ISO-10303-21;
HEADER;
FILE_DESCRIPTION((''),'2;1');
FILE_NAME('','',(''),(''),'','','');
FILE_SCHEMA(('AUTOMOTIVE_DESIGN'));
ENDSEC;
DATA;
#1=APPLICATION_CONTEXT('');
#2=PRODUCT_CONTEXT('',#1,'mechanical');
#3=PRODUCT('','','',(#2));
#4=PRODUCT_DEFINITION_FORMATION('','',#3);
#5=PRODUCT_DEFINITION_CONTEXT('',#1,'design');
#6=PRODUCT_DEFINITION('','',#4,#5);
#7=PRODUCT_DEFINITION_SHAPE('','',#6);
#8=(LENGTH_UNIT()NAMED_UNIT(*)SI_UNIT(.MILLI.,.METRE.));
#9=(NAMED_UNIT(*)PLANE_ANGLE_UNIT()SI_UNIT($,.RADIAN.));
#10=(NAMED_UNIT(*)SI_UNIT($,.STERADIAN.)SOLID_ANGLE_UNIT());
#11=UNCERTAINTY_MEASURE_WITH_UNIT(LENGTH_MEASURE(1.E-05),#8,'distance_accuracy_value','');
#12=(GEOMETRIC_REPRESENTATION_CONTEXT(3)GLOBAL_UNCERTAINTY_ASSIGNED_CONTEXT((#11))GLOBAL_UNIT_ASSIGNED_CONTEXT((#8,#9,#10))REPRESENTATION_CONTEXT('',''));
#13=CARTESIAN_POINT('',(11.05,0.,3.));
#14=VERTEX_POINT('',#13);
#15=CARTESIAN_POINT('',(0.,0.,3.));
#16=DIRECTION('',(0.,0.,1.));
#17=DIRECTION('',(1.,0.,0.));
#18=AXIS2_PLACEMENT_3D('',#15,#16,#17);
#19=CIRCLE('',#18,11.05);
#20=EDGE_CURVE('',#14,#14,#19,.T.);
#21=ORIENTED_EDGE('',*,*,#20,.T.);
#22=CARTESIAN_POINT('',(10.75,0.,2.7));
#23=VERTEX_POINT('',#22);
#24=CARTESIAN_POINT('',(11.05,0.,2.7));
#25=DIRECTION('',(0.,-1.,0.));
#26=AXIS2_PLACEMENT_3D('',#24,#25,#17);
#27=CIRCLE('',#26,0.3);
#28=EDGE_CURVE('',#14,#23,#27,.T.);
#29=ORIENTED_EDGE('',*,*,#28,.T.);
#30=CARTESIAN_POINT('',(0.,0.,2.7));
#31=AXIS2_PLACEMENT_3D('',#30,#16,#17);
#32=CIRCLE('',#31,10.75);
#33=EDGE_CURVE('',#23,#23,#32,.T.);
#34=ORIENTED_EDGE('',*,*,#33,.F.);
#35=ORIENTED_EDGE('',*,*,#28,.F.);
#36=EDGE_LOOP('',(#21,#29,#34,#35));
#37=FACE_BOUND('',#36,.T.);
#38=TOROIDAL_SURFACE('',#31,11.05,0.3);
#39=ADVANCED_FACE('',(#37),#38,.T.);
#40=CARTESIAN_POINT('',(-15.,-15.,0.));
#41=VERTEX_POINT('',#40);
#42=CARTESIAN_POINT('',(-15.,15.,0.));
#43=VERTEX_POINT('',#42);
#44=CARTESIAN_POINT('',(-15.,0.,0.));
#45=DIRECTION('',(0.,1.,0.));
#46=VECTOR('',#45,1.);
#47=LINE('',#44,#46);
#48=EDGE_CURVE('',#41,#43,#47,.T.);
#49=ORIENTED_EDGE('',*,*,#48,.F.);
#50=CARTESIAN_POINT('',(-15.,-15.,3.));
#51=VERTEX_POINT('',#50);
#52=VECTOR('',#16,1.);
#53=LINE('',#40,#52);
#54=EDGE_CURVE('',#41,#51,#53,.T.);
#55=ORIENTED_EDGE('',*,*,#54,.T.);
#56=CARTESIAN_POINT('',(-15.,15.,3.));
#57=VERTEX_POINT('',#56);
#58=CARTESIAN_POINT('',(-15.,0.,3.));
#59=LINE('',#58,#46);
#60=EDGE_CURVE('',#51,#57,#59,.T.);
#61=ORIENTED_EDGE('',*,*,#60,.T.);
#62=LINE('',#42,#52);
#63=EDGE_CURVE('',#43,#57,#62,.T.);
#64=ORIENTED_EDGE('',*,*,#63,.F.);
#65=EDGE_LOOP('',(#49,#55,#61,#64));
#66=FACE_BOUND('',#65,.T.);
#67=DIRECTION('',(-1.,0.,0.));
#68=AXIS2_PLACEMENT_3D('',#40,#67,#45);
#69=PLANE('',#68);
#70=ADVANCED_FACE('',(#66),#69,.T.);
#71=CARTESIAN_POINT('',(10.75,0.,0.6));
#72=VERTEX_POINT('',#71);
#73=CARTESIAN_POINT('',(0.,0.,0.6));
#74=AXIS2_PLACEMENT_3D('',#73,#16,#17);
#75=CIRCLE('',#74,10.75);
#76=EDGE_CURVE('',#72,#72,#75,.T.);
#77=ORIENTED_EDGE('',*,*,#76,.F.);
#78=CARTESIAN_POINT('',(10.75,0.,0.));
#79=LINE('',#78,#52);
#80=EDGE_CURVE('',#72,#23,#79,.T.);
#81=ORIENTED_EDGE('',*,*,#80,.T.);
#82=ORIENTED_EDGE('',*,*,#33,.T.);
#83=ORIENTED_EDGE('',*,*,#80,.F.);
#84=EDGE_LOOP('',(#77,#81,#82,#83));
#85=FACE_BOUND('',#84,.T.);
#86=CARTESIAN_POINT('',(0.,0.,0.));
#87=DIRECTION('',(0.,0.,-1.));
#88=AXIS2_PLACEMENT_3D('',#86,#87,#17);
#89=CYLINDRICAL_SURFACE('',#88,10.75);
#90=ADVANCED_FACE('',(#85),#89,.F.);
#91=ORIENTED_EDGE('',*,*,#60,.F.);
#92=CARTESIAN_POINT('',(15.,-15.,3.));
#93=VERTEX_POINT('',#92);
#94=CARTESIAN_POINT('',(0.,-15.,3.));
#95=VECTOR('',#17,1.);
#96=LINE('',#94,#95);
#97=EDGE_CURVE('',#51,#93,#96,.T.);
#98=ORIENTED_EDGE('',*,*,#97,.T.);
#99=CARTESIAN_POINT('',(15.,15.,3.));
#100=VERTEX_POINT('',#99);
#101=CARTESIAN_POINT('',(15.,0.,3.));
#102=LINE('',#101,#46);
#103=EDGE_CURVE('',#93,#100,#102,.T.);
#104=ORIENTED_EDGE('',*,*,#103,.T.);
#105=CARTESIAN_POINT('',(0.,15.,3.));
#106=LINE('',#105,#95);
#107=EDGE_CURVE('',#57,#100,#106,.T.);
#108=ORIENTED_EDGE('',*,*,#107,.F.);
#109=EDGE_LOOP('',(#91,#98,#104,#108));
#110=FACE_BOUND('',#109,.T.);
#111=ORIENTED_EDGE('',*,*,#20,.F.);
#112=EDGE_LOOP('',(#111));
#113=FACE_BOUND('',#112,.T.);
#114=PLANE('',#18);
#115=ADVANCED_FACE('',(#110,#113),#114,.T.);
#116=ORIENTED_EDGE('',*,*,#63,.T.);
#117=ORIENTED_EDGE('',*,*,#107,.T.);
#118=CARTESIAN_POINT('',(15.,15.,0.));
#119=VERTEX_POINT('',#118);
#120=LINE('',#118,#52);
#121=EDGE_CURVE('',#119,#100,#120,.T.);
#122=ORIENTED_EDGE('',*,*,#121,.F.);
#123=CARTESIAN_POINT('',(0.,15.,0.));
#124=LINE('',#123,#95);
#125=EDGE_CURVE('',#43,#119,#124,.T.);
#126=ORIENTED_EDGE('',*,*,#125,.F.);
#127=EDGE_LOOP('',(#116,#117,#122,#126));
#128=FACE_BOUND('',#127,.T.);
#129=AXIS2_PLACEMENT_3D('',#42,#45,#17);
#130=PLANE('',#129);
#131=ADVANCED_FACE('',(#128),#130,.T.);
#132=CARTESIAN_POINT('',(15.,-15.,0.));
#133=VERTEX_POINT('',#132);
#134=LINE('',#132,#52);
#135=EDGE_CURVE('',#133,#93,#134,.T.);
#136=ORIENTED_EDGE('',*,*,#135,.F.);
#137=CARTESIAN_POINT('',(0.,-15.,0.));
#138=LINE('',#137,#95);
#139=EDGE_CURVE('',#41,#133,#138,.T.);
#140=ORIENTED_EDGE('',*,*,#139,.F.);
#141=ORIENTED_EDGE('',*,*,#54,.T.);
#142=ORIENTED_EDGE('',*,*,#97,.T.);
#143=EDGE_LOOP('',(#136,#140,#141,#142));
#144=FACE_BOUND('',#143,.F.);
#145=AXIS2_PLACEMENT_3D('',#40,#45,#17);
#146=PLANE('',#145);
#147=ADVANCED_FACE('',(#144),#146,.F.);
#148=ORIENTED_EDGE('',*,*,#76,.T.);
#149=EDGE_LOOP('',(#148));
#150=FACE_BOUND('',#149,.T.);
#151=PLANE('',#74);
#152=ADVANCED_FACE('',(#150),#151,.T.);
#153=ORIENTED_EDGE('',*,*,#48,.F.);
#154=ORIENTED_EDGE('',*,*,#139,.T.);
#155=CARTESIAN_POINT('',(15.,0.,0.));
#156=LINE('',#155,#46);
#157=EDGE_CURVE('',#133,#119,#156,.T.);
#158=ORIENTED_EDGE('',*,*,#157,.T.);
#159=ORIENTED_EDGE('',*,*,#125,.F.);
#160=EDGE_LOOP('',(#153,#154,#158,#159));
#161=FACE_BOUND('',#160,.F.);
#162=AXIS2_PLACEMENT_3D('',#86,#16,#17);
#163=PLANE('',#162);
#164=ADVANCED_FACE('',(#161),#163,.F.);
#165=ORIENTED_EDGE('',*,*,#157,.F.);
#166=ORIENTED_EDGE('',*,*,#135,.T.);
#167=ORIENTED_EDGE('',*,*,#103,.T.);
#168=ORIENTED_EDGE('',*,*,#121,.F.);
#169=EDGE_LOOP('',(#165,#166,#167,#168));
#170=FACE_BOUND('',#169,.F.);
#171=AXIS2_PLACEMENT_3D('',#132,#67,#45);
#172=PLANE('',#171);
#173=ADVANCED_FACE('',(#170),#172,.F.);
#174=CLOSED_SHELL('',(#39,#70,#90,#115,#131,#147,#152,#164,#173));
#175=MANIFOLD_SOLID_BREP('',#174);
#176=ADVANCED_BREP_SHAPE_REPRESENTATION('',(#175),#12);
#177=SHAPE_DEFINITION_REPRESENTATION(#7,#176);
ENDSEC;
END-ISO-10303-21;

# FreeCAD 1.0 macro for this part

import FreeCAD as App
import Part
import Sketcher
from FreeCAD import Vector


def edges_at(feature, points):
    """Names of the edges that pass closest to the given points."""
    edges = feature.Shape.Edges
    near = lambda p: min(range(len(edges)), key=lambda i: edges[i].distToShape(Part.Vertex(*p))[0])
    return sorted({f"Edge{near(p) + 1}" for p in points})


def add_polygon(sketch, points):
    """Adds a closed chain of lines whose ends are joined by coincident constraints."""
    first, n = sketch.GeometryCount, len(points)
    for a, b in zip(points, points[1:] + points[:1]):
        sketch.addGeometry(Part.LineSegment(App.Vector(*a, 0), App.Vector(*b, 0)), False)
    for i in range(n):
        sketch.addConstraint(Sketcher.Constraint("Coincident", first + i, 2, first + (i + 1) % n, 1))

doc = App.newDocument("Part")
body = doc.addObject("PartDesign::Body", "Body")

# Sketch on XY plane
sketch1 = doc.addObject("Sketcher::SketchObject", "Sketch")
body.addObject(sketch1)
sketch1.AttachmentSupport = (doc.XY_Plane, [""])
sketch1.MapMode = "FlatFace"
add_polygon(sketch1, [(-15, 15), (-15, -15), (15, -15), (15, 15)])  # lines 0-3
sketch1.addGeometry(Part.Circle(Vector(0, 0, 0), Vector(0, 0, 1), 11), False)  # 4
sketch1.addConstraint(Sketcher.Constraint("Vertical", 0))
sketch1.addConstraint(Sketcher.Constraint("Horizontal", 1))
sketch1.addConstraint(Sketcher.Constraint("Vertical", 2))
sketch1.addConstraint(Sketcher.Constraint("Horizontal", 3))
sketch1.addConstraint(Sketcher.Constraint("Coincident", 4, 3, -1, 1))
sketch1.addConstraint(Sketcher.Constraint("Symmetric", 0, 2, 2, 2, -1, 1))
sketch1.addConstraint(Sketcher.Constraint("Equal", 3, 0))
sketch1.addConstraint(Sketcher.Constraint("Diameter", 4, 21.5))
sketch1.addConstraint(Sketcher.Constraint("DistanceX", 1, 1, 1, 2, 30.0))
pad1 = doc.addObject("PartDesign::Pad", "Pad")
body.addObject(pad1)
pad1.Profile = sketch1
pad1.Length = 3

# Sketch on XY plane
sketch2 = doc.addObject("Sketcher::SketchObject", "Sketch001")
body.addObject(sketch2)
sketch2.AttachmentSupport = (doc.XY_Plane, [""])
sketch2.MapMode = "FlatFace"
sketch2.addGeometry(Part.Circle(Vector(0, 0, 0), Vector(0, 0, 1), 11), False)
sketch2.addConstraint(Sketcher.Constraint("Coincident", 0, 3, -1, 1))
sketch2.addConstraint(Sketcher.Constraint("Diameter", 0, 21.5))
pad2 = doc.addObject("PartDesign::Pad", "Pad001")
body.addObject(pad2)
pad2.Profile = sketch2
pad2.Length = 0.6
doc.recompute()

fillet = doc.addObject("PartDesign::Fillet", "Fillet")
body.addObject(fillet)
fillet.Base = (pad2, edges_at(pad2, [(-10.75, 0, 3)]))
fillet.Radius = 0.3

doc.recompute()
